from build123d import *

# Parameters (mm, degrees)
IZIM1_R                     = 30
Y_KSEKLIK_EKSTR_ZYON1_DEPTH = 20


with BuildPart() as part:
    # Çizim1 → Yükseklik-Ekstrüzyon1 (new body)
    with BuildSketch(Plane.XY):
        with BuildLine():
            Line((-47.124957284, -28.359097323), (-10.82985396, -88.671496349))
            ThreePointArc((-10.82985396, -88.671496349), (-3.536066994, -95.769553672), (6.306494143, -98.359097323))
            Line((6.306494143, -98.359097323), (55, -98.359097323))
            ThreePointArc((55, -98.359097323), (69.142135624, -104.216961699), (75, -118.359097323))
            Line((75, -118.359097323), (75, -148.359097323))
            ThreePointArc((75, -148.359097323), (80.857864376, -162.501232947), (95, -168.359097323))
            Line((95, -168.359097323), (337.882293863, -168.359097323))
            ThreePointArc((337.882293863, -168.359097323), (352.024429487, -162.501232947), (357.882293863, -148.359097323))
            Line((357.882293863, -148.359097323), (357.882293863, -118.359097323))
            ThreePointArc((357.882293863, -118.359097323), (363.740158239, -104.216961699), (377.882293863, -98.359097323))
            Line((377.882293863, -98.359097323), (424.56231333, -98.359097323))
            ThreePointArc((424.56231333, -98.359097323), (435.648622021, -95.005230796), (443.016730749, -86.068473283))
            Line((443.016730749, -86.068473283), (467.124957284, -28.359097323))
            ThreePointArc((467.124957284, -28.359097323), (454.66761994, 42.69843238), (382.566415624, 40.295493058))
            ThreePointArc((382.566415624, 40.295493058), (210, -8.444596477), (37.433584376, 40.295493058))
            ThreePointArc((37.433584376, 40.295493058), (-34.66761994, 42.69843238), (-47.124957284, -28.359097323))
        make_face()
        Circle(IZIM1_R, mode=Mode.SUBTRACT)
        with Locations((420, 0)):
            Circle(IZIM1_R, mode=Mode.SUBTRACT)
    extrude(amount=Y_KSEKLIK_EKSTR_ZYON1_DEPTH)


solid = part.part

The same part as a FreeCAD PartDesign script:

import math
import FreeCAD as App
import Part
import Sketcher
from FreeCAD import Vector
Q = App.Units.Quantity

doc = App.newDocument("Part")
body = doc.addObject("PartDesign::Body", "Body")

sketch1 = doc.addObject("Sketcher::SketchObject", "Sketch")
body.addObject(sketch1)
sketch1.AttachmentSupport = (doc.XY_Plane, [""])
sketch1.MapMode = "FlatFace"
sketch1.addGeometry(Part.LineSegment(Vector(-47.124957, -28.359097, 0), Vector(-10.829854, -88.671496, 0)), False)
sketch1.addGeometry(Part.ArcOfCircle(Part.Circle(Vector(6.306494, -78.359097, 0), Vector(0, 0, 1), 20), math.radians(-148.961098), math.radians(-90)), False)
sketch1.addGeometry(Part.LineSegment(Vector(6.306494, -98.359097, 0), Vector(55, -98.359097, 0)), False)
sketch1.addGeometry(Part.ArcOfCircle(Part.Circle(Vector(55, -118.359097, 0), Vector(0, 0, 1), 20), math.radians(0), math.radians(90)), False)
sketch1.addGeometry(Part.LineSegment(Vector(75, -118.359097, 0), Vector(75, -148.359097, 0)), False)
sketch1.addGeometry(Part.ArcOfCircle(Part.Circle(Vector(95, -148.359097, 0), Vector(0, 0, 1), 20), math.radians(180), math.radians(270)), False)
sketch1.addGeometry(Part.LineSegment(Vector(95, -168.359097, 0), Vector(337.882294, -168.359097, 0)), False)
sketch1.addGeometry(Part.ArcOfCircle(Part.Circle(Vector(337.882294, -148.359097, 0), Vector(0, 0, 1), 20), math.radians(-90), math.radians(0)), False)
sketch1.addGeometry(Part.LineSegment(Vector(357.882294, -148.359097, 0), Vector(357.882294, -118.359097, 0)), False)
sketch1.addGeometry(Part.ArcOfCircle(Part.Circle(Vector(377.882294, -118.359097, 0), Vector(0, 0, 1), 20), math.radians(90), math.radians(180)), False)
sketch1.addGeometry(Part.LineSegment(Vector(377.882294, -98.359097, 0), Vector(424.562313, -98.359097, 0)), False)
sketch1.addGeometry(Part.ArcOfCircle(Part.Circle(Vector(424.562313, -78.359097, 0), Vector(0, 0, 1), 20), math.radians(-90), math.radians(-22.672847)), False)
sketch1.addGeometry(Part.LineSegment(Vector(443.016731, -86.068473, 0), Vector(467.124957, -28.359097, 0)), False)
sketch1.addGeometry(Part.ArcOfCircle(Part.Circle(Vector(420, 0, 0), Vector(0, 0, 1), 55), math.radians(-31.038902), math.radians(132.891378)), False)
sketch1.addGeometry(Part.ArcOfCircle(Part.Circle(Vector(210, 321.414914, 0), Vector(0, 0, 1), 329.85951), math.radians(-121.54387), math.radians(-58.45613)), False)
sketch1.addGeometry(Part.ArcOfCircle(Part.Circle(Vector(0, 0, 0), Vector(0, 0, 1), 55), math.radians(47.108622), math.radians(211.038902)), False)
sketch1.addGeometry(Part.Circle(Vector(0, 0, 0), Vector(0, 0, 1), 30), False)
sketch1.addGeometry(Part.Circle(Vector(420, 0, 0), Vector(0, 0, 1), 30), False)
sketch1.addConstraint(Sketcher.Constraint("Tangent", 0, 2, 1, 1))
sketch1.addConstraint(Sketcher.Constraint("Tangent", 1, 2, 2, 1))
sketch1.addConstraint(Sketcher.Constraint("Tangent", 2, 2, 3, 2))
sketch1.addConstraint(Sketcher.Constraint("Tangent", 3, 1, 4, 1))
sketch1.addConstraint(Sketcher.Constraint("Tangent", 4, 2, 5, 1))
sketch1.addConstraint(Sketcher.Constraint("Tangent", 5, 2, 6, 1))
sketch1.addConstraint(Sketcher.Constraint("Tangent", 6, 2, 7, 1))
sketch1.addConstraint(Sketcher.Constraint("Tangent", 7, 2, 8, 1))
sketch1.addConstraint(Sketcher.Constraint("Tangent", 8, 2, 9, 2))
sketch1.addConstraint(Sketcher.Constraint("Tangent", 9, 1, 10, 1))
sketch1.addConstraint(Sketcher.Constraint("Tangent", 10, 2, 11, 1))
sketch1.addConstraint(Sketcher.Constraint("Tangent", 11, 2, 12, 1))
sketch1.addConstraint(Sketcher.Constraint("Coincident", 12, 2, 13, 1))
sketch1.addConstraint(Sketcher.Constraint("Coincident", 13, 2, 14, 2))
sketch1.addConstraint(Sketcher.Constraint("Coincident", 14, 1, 15, 1))
sketch1.addConstraint(Sketcher.Constraint("Tangent", 15, 2, 0, 1))
sketch1.addConstraint(Sketcher.Constraint("Horizontal", 2))
sketch1.addConstraint(Sketcher.Constraint("Vertical", 4))
sketch1.addConstraint(Sketcher.Constraint("Horizontal", 6))
sketch1.addConstraint(Sketcher.Constraint("Vertical", 8))
sketch1.addConstraint(Sketcher.Constraint("Horizontal", 10))
sketch1.addConstraint(Sketcher.Constraint("Coincident", 15, 3, -1, 1))
sketch1.addConstraint(Sketcher.Constraint("Coincident", 16, 3, -1, 1))
sketch1.addConstraint(Sketcher.Constraint("Coincident", 17, 3, 13, 3))
sketch1.addConstraint(Sketcher.Constraint("Equal", 1, 3))
sketch1.addConstraint(Sketcher.Constraint("Equal", 3, 5))
sketch1.addConstraint(Sketcher.Constraint("Equal", 5, 7))
sketch1.addConstraint(Sketcher.Constraint("Equal", 7, 9))
sketch1.addConstraint(Sketcher.Constraint("Equal", 9, 11))
sketch1.addConstraint(Sketcher.Constraint("Equal", 13, 15))
sketch1.addConstraint(Sketcher.Constraint("Equal", 16, 17))
sketch1.addConstraint(Sketcher.Constraint("PointOnObject", 13, 3, -1))
sketch1.addConstraint(Sketcher.Constraint("Horizontal", 3, 3, 9, 3))
sketch1.addConstraint(Sketcher.Constraint("Horizontal", 13, 2, 14, 1))
sketch1.addConstraint(Sketcher.Constraint("Horizontal", 12, 2, 15, 2))
sketch1.addConstraint(Sketcher.Constraint("Diameter", 16, Q("60 mm")))
sketch1.addConstraint(Sketcher.Constraint("Radius", 1, Q("20 mm")))
sketch1.addConstraint(Sketcher.Constraint("Radius", 13, Q("55 mm")))
sketch1.addConstraint(Sketcher.Constraint("DistanceY", 4, 2, 4, 1, Q("30 mm")))
sketch1.addConstraint(Sketcher.Constraint("DistanceX", -1, 1, 3, 3, Q("55 mm")))
sketch1.addConstraint(Sketcher.Constraint("DistanceX", -1, 1, 13, 3, Q("420 mm")))
sketch1.addConstraint(Sketcher.Constraint("DistanceY", 11, 3, 12, 2, Q("50 mm")))
sketch1.addConstraint(Sketcher.Constraint("Radius", 14, Q("329.85951 mm")))
sketch1.addConstraint(Sketcher.Constraint("DistanceX", 10, 1, 10, 2, Q("46.680019 mm")))
sketch1.addConstraint(Sketcher.Constraint("DistanceX", 1, 3, 7, 3, Q("331.5758 mm")))
sketch1.addConstraint(Sketcher.Constraint("DistanceY", 0, 2, 1, 3, Q("10.312399 mm")))
sketch1.addConstraint(Sketcher.Constraint("DistanceY", 1, 3, 14, 3, Q("399.774011 mm")))
pad1 = doc.addObject("PartDesign::Pad", "Pad")
body.addObject(pad1)
pad1.Profile = sketch1
pad1.Length = 20

doc.recompute()
